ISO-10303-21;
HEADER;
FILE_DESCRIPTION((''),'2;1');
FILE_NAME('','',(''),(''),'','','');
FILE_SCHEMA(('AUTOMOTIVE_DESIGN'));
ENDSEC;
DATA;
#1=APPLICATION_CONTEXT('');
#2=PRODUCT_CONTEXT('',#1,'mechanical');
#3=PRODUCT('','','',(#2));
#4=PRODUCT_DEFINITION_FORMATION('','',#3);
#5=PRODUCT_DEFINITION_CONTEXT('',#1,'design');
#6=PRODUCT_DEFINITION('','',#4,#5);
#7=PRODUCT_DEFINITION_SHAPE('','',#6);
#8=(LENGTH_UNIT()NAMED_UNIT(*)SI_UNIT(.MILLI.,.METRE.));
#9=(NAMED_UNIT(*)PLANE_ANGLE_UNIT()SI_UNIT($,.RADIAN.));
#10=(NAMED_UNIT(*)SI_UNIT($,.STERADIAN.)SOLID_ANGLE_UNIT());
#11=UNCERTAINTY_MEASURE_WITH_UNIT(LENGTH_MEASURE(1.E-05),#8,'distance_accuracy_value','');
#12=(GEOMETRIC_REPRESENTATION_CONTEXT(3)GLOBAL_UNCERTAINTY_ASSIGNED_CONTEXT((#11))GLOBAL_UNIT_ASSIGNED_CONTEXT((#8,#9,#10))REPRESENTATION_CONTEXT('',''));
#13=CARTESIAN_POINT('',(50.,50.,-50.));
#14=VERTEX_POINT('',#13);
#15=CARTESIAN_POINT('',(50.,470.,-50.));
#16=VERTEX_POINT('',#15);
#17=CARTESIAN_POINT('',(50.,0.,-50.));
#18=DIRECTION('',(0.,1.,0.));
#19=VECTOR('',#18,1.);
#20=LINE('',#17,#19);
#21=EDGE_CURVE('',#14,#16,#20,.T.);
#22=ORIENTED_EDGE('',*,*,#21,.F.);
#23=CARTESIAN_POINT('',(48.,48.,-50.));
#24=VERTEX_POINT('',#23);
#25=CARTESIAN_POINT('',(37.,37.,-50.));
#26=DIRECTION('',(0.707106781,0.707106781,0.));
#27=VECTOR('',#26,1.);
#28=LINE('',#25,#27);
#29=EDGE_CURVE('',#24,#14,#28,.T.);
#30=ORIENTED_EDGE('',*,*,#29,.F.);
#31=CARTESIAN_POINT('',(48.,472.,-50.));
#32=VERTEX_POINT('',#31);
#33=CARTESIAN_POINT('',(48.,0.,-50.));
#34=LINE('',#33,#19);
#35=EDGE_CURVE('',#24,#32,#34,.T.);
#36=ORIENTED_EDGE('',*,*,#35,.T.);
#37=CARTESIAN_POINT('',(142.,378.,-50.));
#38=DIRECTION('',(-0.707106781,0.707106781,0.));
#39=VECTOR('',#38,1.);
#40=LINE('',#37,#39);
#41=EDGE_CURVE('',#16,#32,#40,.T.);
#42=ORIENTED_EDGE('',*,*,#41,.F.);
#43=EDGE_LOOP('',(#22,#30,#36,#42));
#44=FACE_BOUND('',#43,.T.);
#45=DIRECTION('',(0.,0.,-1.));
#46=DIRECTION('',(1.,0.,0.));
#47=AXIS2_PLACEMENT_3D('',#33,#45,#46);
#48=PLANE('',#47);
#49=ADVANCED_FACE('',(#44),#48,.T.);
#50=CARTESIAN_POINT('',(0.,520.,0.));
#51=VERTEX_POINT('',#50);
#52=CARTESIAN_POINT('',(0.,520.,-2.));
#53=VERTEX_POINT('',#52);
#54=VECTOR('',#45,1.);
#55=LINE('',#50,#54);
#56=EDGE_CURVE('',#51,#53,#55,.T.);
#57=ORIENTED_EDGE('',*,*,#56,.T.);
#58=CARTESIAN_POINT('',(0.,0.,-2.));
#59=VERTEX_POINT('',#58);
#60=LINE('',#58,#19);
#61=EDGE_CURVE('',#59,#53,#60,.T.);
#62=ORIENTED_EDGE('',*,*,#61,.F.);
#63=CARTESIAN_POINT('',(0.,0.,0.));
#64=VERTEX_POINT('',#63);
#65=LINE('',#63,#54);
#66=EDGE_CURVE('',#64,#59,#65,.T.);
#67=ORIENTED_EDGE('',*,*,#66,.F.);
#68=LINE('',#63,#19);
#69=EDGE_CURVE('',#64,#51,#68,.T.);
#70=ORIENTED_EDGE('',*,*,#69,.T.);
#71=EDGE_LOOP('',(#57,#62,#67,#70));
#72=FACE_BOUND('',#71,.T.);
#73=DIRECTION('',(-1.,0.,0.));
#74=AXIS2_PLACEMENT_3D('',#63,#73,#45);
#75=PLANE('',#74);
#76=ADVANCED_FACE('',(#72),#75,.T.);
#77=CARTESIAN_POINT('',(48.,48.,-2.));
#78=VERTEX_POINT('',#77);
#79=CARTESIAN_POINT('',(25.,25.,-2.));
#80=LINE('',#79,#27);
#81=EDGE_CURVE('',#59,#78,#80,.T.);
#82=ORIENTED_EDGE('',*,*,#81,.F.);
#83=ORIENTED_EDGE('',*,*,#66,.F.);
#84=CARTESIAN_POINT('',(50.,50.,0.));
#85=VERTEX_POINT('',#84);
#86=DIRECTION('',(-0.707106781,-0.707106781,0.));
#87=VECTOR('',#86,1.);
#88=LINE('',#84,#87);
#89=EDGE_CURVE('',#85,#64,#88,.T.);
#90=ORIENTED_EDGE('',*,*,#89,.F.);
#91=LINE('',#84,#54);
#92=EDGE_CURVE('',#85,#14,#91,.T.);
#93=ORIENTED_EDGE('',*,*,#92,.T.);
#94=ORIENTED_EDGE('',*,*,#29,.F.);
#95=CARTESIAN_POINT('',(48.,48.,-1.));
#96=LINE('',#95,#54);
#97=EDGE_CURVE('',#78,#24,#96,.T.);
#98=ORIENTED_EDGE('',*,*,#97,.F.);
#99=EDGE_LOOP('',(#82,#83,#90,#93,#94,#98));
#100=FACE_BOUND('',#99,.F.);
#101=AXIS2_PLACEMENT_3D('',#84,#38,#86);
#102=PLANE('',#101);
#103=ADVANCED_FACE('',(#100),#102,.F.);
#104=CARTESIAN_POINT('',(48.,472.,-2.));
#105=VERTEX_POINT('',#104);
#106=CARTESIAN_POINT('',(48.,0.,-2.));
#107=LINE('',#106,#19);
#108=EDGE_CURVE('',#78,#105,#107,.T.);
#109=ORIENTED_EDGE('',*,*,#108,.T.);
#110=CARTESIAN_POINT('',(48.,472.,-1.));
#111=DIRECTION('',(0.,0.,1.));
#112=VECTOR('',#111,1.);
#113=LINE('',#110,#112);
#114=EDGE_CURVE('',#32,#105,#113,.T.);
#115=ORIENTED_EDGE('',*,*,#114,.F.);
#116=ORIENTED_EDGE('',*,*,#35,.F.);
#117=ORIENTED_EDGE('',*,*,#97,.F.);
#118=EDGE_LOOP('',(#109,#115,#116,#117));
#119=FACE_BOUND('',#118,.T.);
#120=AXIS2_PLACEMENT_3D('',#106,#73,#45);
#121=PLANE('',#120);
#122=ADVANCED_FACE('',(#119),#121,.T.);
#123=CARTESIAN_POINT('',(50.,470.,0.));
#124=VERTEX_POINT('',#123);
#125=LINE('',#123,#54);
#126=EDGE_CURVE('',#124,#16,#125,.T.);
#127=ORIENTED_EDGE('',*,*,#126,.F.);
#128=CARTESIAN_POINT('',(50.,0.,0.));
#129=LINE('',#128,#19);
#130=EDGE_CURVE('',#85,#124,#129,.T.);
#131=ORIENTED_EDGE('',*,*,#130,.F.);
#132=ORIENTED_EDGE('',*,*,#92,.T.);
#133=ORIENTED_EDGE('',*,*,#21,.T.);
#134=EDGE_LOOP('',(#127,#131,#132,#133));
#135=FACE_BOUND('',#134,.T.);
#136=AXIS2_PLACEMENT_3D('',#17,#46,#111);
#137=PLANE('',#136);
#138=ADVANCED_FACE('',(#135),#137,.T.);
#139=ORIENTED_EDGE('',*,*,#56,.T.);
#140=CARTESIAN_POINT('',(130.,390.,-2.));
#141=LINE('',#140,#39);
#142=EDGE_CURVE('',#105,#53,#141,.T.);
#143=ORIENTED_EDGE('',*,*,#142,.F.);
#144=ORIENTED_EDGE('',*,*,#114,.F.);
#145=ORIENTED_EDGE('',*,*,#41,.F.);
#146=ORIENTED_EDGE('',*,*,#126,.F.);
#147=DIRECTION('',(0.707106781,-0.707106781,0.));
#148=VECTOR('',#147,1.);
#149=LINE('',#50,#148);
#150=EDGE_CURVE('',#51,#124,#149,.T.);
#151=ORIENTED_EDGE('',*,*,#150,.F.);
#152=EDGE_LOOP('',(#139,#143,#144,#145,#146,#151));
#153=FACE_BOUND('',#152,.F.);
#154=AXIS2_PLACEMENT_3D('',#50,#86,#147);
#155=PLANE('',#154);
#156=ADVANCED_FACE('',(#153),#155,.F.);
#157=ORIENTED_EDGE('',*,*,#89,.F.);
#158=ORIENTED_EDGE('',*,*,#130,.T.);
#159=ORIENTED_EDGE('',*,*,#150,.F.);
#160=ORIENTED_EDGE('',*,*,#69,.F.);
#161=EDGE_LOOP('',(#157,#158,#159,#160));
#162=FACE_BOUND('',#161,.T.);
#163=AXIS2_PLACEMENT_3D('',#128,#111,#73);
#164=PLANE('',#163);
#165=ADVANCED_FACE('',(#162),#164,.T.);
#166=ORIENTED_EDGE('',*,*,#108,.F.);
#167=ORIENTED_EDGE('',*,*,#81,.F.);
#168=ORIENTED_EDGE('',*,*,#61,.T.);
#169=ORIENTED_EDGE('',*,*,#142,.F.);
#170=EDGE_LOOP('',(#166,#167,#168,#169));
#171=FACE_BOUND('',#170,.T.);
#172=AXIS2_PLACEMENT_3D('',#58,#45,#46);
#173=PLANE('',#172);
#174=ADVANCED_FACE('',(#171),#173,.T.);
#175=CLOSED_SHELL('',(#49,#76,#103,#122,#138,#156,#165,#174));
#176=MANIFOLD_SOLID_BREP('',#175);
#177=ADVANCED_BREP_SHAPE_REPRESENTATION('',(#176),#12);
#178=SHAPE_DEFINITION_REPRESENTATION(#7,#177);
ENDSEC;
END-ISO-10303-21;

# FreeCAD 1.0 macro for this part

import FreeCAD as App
import Part
import Sketcher

V = App.Vector


def add_polygon(sketch, points):
    """Adds a closed chain of lines whose ends are joined by coincident constraints."""
    first, n = sketch.GeometryCount, len(points)
    for a, b in zip(points, points[1:] + points[:1]):
        sketch.addGeometry(Part.LineSegment(App.Vector(*a, 0), App.Vector(*b, 0)), False)
    for i in range(n):
        sketch.addConstraint(Sketcher.Constraint("Coincident", first + i, 2, first + (i + 1) % n, 1))

doc = App.newDocument("Part")
body = doc.addObject("PartDesign::Body", "Body")

# Sketch on XZ plane
sketch1 = body.newObject("Sketcher::SketchObject", "Sketch")
sketch1.AttachmentSupport = (doc.getObject("XZ_Plane"), [""])
sketch1.MapMode = "FlatFace"
add_polygon(sketch1, [(50, 0), (0, 0), (0, -2), (48, -2), (48, -50), (50, -50)])  # lines 0-5
sketch1.addConstraint([
    Sketcher.Constraint("Horizontal", 0),
    Sketcher.Constraint("Vertical", 1),
    Sketcher.Constraint("Horizontal", 2),
    Sketcher.Constraint("Vertical", 3),
    Sketcher.Constraint("Horizontal", 4),
    Sketcher.Constraint("Vertical", 5),
    Sketcher.Constraint("Coincident", 0, 2, -1, 1),
    Sketcher.Constraint("Equal", 4, 1),
    Sketcher.Constraint("Equal", 2, 3),
    Sketcher.Constraint("DistanceX", 0, 2, 0, 1, 50.0),
    Sketcher.Constraint("DistanceX", 2, 1, 2, 2, 48.0),
])
pad1 = body.newObject("PartDesign::Pad", "Pad")
pad1.Profile = sketch1
pad1.Length = 520
pad1.Reversed = True

# Sketch on XY plane
sketch2 = body.newObject("Sketcher::SketchObject", "Sketch001")
sketch2.AttachmentSupport = (doc.getObject("XY_Plane"), [""])
sketch2.MapMode = "FlatFace"
add_polygon(sketch2, [(50, 50), (0, 0), (50, 0)])  # lines 0-2
add_polygon(sketch2, [(50, 520), (0, 520), (50, 470)])  # lines 3-5
sketch2.addConstraint([
    Sketcher.Constraint("Horizontal", 1),
    Sketcher.Constraint("Vertical", 2),
    Sketcher.Constraint("Horizontal", 3),
    Sketcher.Constraint("Vertical", 5),
    Sketcher.Constraint("Coincident", 0, 2, -1, 1),
    Sketcher.Constraint("PointOnObject", 3, 2, -2),
    Sketcher.Constraint("Perpendicular", 0, 4),
    Sketcher.Constraint("Vertical", 2, 2, 4, 2),
    Sketcher.Constraint("Equal", 3, 2),
    Sketcher.Constraint("DistanceX", 1, 1, 1, 2, 50.0),
    Sketcher.Constraint("DistanceY", -1, 1, 3, 2, 520.0),
])
pocket1 = body.newObject("PartDesign::Pocket", "Pocket")
pocket1.Profile = sketch2
pocket1.Type = "ThroughAll"

doc.recompute()
